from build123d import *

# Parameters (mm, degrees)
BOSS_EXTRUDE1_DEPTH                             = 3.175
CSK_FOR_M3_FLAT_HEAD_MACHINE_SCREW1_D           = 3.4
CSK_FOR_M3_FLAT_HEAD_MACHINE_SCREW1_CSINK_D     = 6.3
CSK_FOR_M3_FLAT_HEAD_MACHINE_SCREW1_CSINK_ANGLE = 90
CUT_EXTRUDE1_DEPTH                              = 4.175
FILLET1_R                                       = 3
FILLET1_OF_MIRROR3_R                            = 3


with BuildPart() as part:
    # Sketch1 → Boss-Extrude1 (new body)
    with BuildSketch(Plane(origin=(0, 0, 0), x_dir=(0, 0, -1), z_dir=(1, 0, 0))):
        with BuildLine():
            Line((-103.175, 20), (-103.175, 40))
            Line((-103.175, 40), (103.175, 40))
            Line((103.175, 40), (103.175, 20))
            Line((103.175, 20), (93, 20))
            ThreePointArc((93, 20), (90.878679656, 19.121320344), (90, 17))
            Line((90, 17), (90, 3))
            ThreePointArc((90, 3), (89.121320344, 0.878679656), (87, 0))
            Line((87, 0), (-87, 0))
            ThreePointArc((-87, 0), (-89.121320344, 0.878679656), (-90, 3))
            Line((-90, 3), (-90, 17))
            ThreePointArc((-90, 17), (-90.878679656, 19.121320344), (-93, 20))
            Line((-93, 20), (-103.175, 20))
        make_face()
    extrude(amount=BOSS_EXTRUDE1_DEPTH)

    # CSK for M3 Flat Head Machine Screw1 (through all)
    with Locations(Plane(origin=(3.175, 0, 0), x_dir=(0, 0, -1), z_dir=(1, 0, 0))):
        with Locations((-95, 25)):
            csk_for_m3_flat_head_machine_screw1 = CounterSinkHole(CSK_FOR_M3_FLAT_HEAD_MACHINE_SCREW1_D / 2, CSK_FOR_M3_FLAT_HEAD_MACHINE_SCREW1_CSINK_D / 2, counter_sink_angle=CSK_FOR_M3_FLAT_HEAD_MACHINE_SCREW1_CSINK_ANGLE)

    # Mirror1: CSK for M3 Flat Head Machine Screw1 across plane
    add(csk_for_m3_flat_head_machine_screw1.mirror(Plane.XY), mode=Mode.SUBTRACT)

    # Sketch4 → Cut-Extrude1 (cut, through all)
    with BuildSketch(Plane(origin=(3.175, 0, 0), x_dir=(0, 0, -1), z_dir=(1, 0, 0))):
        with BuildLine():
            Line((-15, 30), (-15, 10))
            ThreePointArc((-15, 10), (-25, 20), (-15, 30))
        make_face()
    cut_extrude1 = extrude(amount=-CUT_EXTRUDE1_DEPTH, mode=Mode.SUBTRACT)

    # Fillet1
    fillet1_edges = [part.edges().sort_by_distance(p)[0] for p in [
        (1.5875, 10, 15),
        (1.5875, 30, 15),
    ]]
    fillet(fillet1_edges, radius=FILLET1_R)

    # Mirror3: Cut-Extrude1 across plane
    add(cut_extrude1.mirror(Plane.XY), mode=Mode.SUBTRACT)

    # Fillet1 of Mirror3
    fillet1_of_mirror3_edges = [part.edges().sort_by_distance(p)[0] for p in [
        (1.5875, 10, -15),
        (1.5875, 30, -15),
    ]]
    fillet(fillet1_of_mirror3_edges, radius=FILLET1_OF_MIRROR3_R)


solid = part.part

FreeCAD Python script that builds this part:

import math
import FreeCAD as App
import Part
import Sketcher
Q = App.Units.Quantity


def edges_at(feature, points):
    """Names of the edges that pass closest to the given points."""
    edges = feature.Shape.Edges
    near = lambda p: min(range(len(edges)), key=lambda i: edges[i].distToShape(Part.Vertex(*p))[0])
    return sorted({f"Edge{near(p) + 1}" for p in points})

doc = App.newDocument("Part")
body = doc.addObject("PartDesign::Body", "Body")

sketch1 = body.newObject("Sketcher::SketchObject", "Sketch")
sketch1.AttachmentSupport = (doc.getObject("YZ_Plane"), [""])
sketch1.MapMode = "FlatFace"
sketch1.addGeometry(Part.LineSegment(App.Vector(40, 103.2, 0), App.Vector(20, 103.2, 0)), False)
sketch1.addGeometry(Part.LineSegment(App.Vector(20, 103.2, 0), App.Vector(20, 93, 0)), False)
sketch1.addGeometry(Part.ArcOfCircle(Part.Circle(App.Vector(17, 93, 0), App.Vector(0, 0, 1), 3), math.radians(-90), math.radians(0)), False)
sketch1.addGeometry(Part.LineSegment(App.Vector(17, 90, 0), App.Vector(3, 90, 0)), False)
sketch1.addGeometry(Part.ArcOfCircle(Part.Circle(App.Vector(3, 87, 0), App.Vector(0, 0, 1), 3), math.radians(90), math.radians(180)), False)
sketch1.addGeometry(Part.LineSegment(App.Vector(0, 87, 0), App.Vector(0, -87, 0)), False)
sketch1.addGeometry(Part.ArcOfCircle(Part.Circle(App.Vector(3, -87, 0), App.Vector(0, 0, 1), 3), math.radians(180), math.radians(270)), False)
sketch1.addGeometry(Part.LineSegment(App.Vector(3, -90, 0), App.Vector(17, -90, 0)), False)
sketch1.addGeometry(Part.ArcOfCircle(Part.Circle(App.Vector(17, -93, 0), App.Vector(0, 0, 1), 3), math.radians(0), math.radians(90)), False)
sketch1.addGeometry(Part.LineSegment(App.Vector(20, -93, 0), App.Vector(20, -103.2, 0)), False)
sketch1.addGeometry(Part.LineSegment(App.Vector(20, -103.2, 0), App.Vector(40, -103.2, 0)), False)
sketch1.addGeometry(Part.LineSegment(App.Vector(40, -103.2, 0), App.Vector(40, 103.2, 0)), False)
sketch1.addConstraint(Sketcher.Constraint("Coincident", 0, 2, 1, 1))
sketch1.addConstraint(Sketcher.Constraint("Tangent", 1, 2, 2, 2))
sketch1.addConstraint(Sketcher.Constraint("Tangent", 2, 1, 3, 1))
sketch1.addConstraint(Sketcher.Constraint("Tangent", 3, 2, 4, 1))
sketch1.addConstraint(Sketcher.Constraint("Tangent", 4, 2, 5, 1))
sketch1.addConstraint(Sketcher.Constraint("Tangent", 5, 2, 6, 1))
sketch1.addConstraint(Sketcher.Constraint("Tangent", 6, 2, 7, 1))
sketch1.addConstraint(Sketcher.Constraint("Tangent", 7, 2, 8, 2))
sketch1.addConstraint(Sketcher.Constraint("Tangent", 8, 1, 9, 1))
sketch1.addConstraint(Sketcher.Constraint("Coincident", 9, 2, 10, 1))
sketch1.addConstraint(Sketcher.Constraint("Coincident", 10, 2, 11, 1))
sketch1.addConstraint(Sketcher.Constraint("Coincident", 11, 2, 0, 1))
sketch1.addConstraint(Sketcher.Constraint("Horizontal", 0))
sketch1.addConstraint(Sketcher.Constraint("Vertical", 1))
sketch1.addConstraint(Sketcher.Constraint("Horizontal", 3))
sketch1.addConstraint(Sketcher.Constraint("Vertical", 5))
sketch1.addConstraint(Sketcher.Constraint("Horizontal", 7))
sketch1.addConstraint(Sketcher.Constraint("Vertical", 9))
sketch1.addConstraint(Sketcher.Constraint("Horizontal", 10))
sketch1.addConstraint(Sketcher.Constraint("Vertical", 11))
sketch1.addConstraint(Sketcher.Constraint("Equal", 2, 4))
sketch1.addConstraint(Sketcher.Constraint("Equal", 4, 6))
sketch1.addConstraint(Sketcher.Constraint("Equal", 6, 8))
sketch1.addConstraint(Sketcher.Constraint("Symmetric", 4, 2, 5, 2, -1, 1))
sketch1.addConstraint(Sketcher.Constraint("Symmetric", 0, 2, 9, 2, -1))
sketch1.addConstraint(Sketcher.Constraint("Radius", 2, Q("3 mm")))
sketch1.addConstraint(Sketcher.Constraint("DistanceX", 0, 2, 0, 1, Q("20 mm")))
sketch1.addConstraint(Sketcher.Constraint("DistanceX", 3, 2, 3, 1, Q("14 mm")))
sketch1.addConstraint(Sketcher.Constraint("DistanceY", 5, 2, 5, 1, Q("174 mm")))
sketch1.addConstraint(Sketcher.Constraint("DistanceY", 11, 1, 11, 2, Q("206.35 mm")))
pad1 = body.newObject("PartDesign::Pad", "Pad")
pad1.Profile = sketch1
pad1.Length = 3.175

sketch2 = body.newObject("Sketcher::SketchObject", "Sketch001")
sketch2.AttachmentSupport = (doc.getObject("YZ_Plane"), [""])
sketch2.MapMode = "FlatFace"
sketch2.AttachmentOffset = App.Placement(App.Vector(0, 0, 3.175), App.Rotation())
sketch2.addGeometry(Part.Circle(App.Vector(25, 95, 0), App.Vector(0, 0, 1), 1.7), False)
sketch2.addConstraint(Sketcher.Constraint("Diameter", 0, Q("3.4 mm")))
sketch2.addConstraint(Sketcher.Constraint("DistanceX", -1, 1, 0, 3, Q("25 mm")))
sketch2.addConstraint(Sketcher.Constraint("DistanceY", -1, 1, 0, 3, Q("95 mm")))
doc.recompute()
hole = body.newObject("PartDesign::Hole", "Hole")
hole.Profile = sketch2
hole.ThreadType = "None"
hole.Diameter = 3.4
hole.DepthType = "ThroughAll"
hole.HoleCutType = "Countersink"
hole.HoleCutDiameter = 6.3
hole.HoleCutCountersinkAngle = 90
doc.recompute()

mirrored = body.newObject("PartDesign::Mirrored", "Mirrored")
mirrored.Originals = [hole]
mirrored.MirrorPlane = (doc.getObject("XY_Plane"), [""])
body.Tip = mirrored

sketch3 = body.newObject("Sketcher::SketchObject", "Sketch002")
sketch3.AttachmentSupport = (doc.getObject("YZ_Plane"), [""])
sketch3.MapMode = "FlatFace"
sketch3.AttachmentOffset = App.Placement(App.Vector(0, 0, 3.175), App.Rotation())
sketch3.addGeometry(Part.LineSegment(App.Vector(10, 15, 0), App.Vector(30, 15, 0)), False)
sketch3.addGeometry(Part.ArcOfCircle(Part.Circle(App.Vector(20, 15, 0), App.Vector(0, 0, 1), 10), math.radians(0), math.radians(180)), False)
sketch3.addConstraint(Sketcher.Constraint("Coincident", 0, 1, 1, 2))
sketch3.addConstraint(Sketcher.Constraint("Coincident", 1, 1, 0, 2))
sketch3.addConstraint(Sketcher.Constraint("Horizontal", 0))
sketch3.addConstraint(Sketcher.Constraint("Horizontal", 1, 3, 0, 1))
sketch3.addConstraint(Sketcher.Constraint("Radius", 1, Q("10 mm")))
sketch3.addConstraint(Sketcher.Constraint("DistanceX", -1, 1, 1, 3, Q("20 mm")))
sketch3.addConstraint(Sketcher.Constraint("DistanceY", -1, 1, 1, 3, Q("15 mm")))
pocket1 = body.newObject("PartDesign::Pocket", "Pocket")
pocket1.Profile = sketch3
pocket1.Type = "ThroughAll"
doc.recompute()

fillet = body.newObject("PartDesign::Fillet", "Fillet")
fillet.Base = (pocket1, edges_at(pocket1, [(1.587, 10, 15), (1.587, 30, 15)]))
fillet.Radius = 3
doc.recompute()

mirrored2 = body.newObject("PartDesign::Mirrored", "Mirrored001")
mirrored2.Originals = [pocket1]
mirrored2.MirrorPlane = (doc.getObject("XY_Plane"), [""])
body.Tip = mirrored2
doc.recompute()

fillet2 = body.newObject("PartDesign::Fillet", "Fillet001")
fillet2.Base = (mirrored2, edges_at(mirrored2, [(1.587, 10, -15), (1.587, 30, -15)]))
fillet2.Radius = 3

doc.recompute()
